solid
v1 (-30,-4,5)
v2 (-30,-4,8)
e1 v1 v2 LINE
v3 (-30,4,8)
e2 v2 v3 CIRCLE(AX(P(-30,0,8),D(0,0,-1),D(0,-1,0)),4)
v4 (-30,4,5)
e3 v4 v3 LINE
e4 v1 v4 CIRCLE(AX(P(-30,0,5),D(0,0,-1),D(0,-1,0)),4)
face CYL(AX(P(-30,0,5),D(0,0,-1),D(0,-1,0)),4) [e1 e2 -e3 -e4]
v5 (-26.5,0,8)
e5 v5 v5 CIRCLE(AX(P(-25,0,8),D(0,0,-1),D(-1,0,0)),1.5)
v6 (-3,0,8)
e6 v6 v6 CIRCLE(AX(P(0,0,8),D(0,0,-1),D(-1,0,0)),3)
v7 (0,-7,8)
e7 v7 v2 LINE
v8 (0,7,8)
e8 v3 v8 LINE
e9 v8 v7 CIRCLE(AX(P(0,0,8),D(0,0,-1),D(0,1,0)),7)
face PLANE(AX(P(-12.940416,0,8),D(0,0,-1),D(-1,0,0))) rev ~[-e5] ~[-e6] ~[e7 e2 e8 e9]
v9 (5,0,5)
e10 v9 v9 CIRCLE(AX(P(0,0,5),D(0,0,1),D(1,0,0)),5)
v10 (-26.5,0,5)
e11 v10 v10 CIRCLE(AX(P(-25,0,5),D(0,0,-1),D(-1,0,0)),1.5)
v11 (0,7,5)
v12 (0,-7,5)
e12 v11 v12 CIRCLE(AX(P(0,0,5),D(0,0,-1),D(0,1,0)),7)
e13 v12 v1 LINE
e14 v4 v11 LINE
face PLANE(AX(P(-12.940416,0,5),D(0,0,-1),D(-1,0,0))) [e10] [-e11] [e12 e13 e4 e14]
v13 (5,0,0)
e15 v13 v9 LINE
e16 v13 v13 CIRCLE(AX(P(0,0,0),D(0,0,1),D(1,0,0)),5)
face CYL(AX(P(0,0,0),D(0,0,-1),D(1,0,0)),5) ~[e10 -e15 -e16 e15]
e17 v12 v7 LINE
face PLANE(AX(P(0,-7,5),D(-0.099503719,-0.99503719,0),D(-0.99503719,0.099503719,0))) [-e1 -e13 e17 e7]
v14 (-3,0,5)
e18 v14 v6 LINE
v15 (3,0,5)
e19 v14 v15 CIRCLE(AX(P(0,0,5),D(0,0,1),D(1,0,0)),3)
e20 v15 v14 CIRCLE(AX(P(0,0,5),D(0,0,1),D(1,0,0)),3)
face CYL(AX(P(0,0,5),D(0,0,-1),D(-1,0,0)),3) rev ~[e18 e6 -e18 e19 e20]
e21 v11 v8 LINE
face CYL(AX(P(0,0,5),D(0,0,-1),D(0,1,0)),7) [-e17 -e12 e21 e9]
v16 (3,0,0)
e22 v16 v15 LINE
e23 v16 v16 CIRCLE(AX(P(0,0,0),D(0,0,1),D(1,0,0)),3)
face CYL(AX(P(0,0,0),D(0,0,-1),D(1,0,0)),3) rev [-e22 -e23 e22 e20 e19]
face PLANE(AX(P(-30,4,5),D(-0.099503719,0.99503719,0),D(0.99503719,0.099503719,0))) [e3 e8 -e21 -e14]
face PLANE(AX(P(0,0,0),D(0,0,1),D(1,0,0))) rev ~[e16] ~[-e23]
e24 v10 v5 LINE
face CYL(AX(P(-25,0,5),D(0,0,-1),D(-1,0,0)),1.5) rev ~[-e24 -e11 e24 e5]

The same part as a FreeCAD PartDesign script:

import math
import FreeCAD as App
import Part
import Sketcher
from FreeCAD import Vector

doc = App.newDocument("Part")
body = doc.addObject("PartDesign::Body", "Body")

sketch1 = body.newObject("Sketcher::SketchObject", "Sketch")
sketch1.AttachmentSupport = (doc.getObject("XY_Plane"), [""])
sketch1.MapMode = "FlatFace"
sketch1.addGeometry(Part.Circle(Vector(0, 0, 0), Vector(0, 0, 1), 5), False)
sketch1.addGeometry(Part.Circle(Vector(0, 0, 0), Vector(0, 0, 1), 3), False)
sketch1.addConstraint(Sketcher.Constraint("Coincident", 0, 3, -1, 1))
sketch1.addConstraint(Sketcher.Constraint("Coincident", 1, 3, -1, 1))
sketch1.addConstraint(Sketcher.Constraint("Diameter", 0, 10.0))
sketch1.addConstraint(Sketcher.Constraint("Diameter", 1, 6.0))
pad1 = body.newObject("PartDesign::Pad", "Pad")
pad1.Profile = sketch1
pad1.Length = 5

sketch2 = body.newObject("Sketcher::SketchObject", "Sketch001")
sketch2.AttachmentSupport = (doc.getObject("XY_Plane"), [""])
sketch2.MapMode = "FlatFace"
sketch2.AttachmentOffset = App.Placement(Vector(0, 0, 5), App.Rotation())
sketch2.addGeometry(Part.LineSegment(Vector(0, 7, 0), Vector(-30, 4, 0)), False)
sketch2.addGeometry(Part.ArcOfCircle(Part.Circle(Vector(-30, 0, 0), Vector(0, 0, 1), 4), math.radians(90), math.radians(270)), False)
sketch2.addGeometry(Part.LineSegment(Vector(-30, -4, 0), Vector(0, -7, 0)), False)
sketch2.addGeometry(Part.ArcOfCircle(Part.Circle(Vector(0, 0, 0), Vector(0, 0, 1), 7), math.radians(-90), math.radians(90)), False)
sketch2.addConstraint(Sketcher.Constraint("Coincident", 0, 2, 1, 1))
sketch2.addConstraint(Sketcher.Constraint("Coincident", 1, 2, 2, 1))
sketch2.addConstraint(Sketcher.Constraint("Coincident", 2, 2, 3, 1))
sketch2.addConstraint(Sketcher.Constraint("Coincident", 3, 2, 0, 1))
sketch2.addConstraint(Sketcher.Constraint("Coincident", 3, 3, -1, 1))
sketch2.addConstraint(Sketcher.Constraint("Symmetric", 0, 2, 1, 2, -1))
sketch2.addConstraint(Sketcher.Constraint("PointOnObject", 2, 2, -2))
sketch2.addConstraint(Sketcher.Constraint("PointOnObject", 3, 2, -2))
sketch2.addConstraint(Sketcher.Constraint("Vertical", 1, 3, 0, 2))
sketch2.addConstraint(Sketcher.Constraint("Radius", 1, 4.0))
sketch2.addConstraint(Sketcher.Constraint("Radius", 3, 7.0))
sketch2.addConstraint(Sketcher.Constraint("DistanceX", 1, 3, -1, 1, 30.0))
pad2 = body.newObject("PartDesign::Pad", "Pad001")
pad2.Profile = sketch2
pad2.Length = 3

sketch3 = body.newObject("Sketcher::SketchObject", "Sketch002")
sketch3.AttachmentSupport = (doc.getObject("XY_Plane"), [""])
sketch3.MapMode = "FlatFace"
sketch3.AttachmentOffset = App.Placement(Vector(0, 0, 5), App.Rotation())
sketch3.addGeometry(Part.Circle(Vector(-25, 0, 0), Vector(0, 0, 1), 1.5), False)
sketch3.addConstraint(Sketcher.Constraint("PointOnObject", 0, 3, -1))
sketch3.addConstraint(Sketcher.Constraint("Diameter", 0, 3.0))
sketch3.addConstraint(Sketcher.Constraint("DistanceX", 0, 3, -1, 1, 25.0))
pocket1 = body.newObject("PartDesign::Pocket", "Pocket")
pocket1.Profile = sketch3
pocket1.Length = 3
pocket1.Reversed = True

sketch4 = body.newObject("Sketcher::SketchObject", "Sketch003")
sketch4.AttachmentSupport = (doc.getObject("XY_Plane"), [""])
sketch4.MapMode = "FlatFace"
sketch4.AttachmentOffset = App.Placement(Vector(0, 0, 5), App.Rotation())
sketch4.addGeometry(Part.Circle(Vector(0, 0, 0), Vector(0, 0, 1), 3), False)
sketch4.addConstraint(Sketcher.Constraint("Coincident", 0, 3, -1, 1))
sketch4.addConstraint(Sketcher.Constraint("Diameter", 0, 6.0))
pocket2 = body.newObject("PartDesign::Pocket", "Pocket001")
pocket2.Profile = sketch4
pocket2.Length = 3
pocket2.Reversed = True

doc.recompute()
